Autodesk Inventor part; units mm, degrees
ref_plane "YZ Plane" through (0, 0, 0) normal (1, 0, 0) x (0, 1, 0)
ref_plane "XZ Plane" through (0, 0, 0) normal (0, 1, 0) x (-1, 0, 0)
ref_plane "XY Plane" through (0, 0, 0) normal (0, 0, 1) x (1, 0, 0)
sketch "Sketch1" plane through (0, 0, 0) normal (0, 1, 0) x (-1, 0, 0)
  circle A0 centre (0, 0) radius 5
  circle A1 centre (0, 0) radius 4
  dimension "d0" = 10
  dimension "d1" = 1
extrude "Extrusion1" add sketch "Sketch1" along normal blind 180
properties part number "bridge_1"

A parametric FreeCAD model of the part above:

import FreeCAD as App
import Part
import Sketcher
Q = App.Units.Quantity

doc = App.newDocument("Part")
body = doc.addObject("PartDesign::Body", "Body")

# Sketch on XZ plane
sketch1 = body.newObject("Sketcher::SketchObject", "Sketch")
sketch1.AttachmentSupport = (doc.getObject("XZ_Plane"), [""])
sketch1.MapMode = "FlatFace"
sketch1.addGeometry([
    Part.Circle(App.Vector(0, 0, 0), App.Vector(0, 0, 1), 5),
    Part.Circle(App.Vector(0, 0, 0), App.Vector(0, 0, 1), 4),
], False)
sketch1.addConstraint([
    Sketcher.Constraint("Coincident", 0, 3, -1, 1),
    Sketcher.Constraint("Coincident", 1, 3, -1, 1),
    Sketcher.Constraint("Diameter", 0, Q("10 mm")),
    Sketcher.Constraint("Diameter", 1, Q("8 mm")),
])
pad1 = body.newObject("PartDesign::Pad", "Pad")
pad1.Profile = sketch1
pad1.Length = 180
pad1.Reversed = True

doc.recompute()
